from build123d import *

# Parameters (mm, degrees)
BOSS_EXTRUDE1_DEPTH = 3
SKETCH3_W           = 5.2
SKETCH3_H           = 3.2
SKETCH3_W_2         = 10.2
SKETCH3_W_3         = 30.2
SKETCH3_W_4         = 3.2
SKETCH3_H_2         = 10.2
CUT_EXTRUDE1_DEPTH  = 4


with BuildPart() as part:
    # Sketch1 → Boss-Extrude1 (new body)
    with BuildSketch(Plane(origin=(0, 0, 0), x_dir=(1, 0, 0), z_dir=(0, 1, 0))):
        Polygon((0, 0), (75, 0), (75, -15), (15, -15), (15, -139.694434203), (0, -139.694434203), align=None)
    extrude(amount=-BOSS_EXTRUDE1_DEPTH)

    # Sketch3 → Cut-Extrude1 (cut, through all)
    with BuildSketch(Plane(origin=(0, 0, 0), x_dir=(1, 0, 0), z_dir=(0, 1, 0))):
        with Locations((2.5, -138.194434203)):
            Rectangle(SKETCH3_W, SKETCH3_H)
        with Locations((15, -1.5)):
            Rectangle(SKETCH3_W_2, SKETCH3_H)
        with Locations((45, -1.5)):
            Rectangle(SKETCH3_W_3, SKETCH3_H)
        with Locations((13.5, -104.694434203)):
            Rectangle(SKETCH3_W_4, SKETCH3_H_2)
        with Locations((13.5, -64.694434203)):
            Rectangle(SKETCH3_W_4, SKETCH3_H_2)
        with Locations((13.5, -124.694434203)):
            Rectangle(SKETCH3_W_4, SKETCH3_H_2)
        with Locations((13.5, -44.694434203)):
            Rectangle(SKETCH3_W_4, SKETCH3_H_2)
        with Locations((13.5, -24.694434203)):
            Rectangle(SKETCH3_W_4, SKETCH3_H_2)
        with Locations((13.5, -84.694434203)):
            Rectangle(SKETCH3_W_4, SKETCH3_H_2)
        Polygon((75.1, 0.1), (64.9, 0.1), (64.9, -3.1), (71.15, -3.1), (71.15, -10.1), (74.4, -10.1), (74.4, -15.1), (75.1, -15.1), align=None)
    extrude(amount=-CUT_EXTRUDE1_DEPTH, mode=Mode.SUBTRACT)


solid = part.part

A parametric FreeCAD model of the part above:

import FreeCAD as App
import Part
import Sketcher

V = App.Vector


def add_polygon(sketch, points):
    """Adds a closed chain of lines whose ends are joined by coincident constraints."""
    first, n = sketch.GeometryCount, len(points)
    for a, b in zip(points, points[1:] + points[:1]):
        sketch.addGeometry(Part.LineSegment(App.Vector(*a, 0), App.Vector(*b, 0)), False)
    for i in range(n):
        sketch.addConstraint(Sketcher.Constraint("Coincident", first + i, 2, first + (i + 1) % n, 1))

doc = App.newDocument("Part")
body = doc.addObject("PartDesign::Body", "Body")

# Sketch on XZ plane
sketch1 = doc.addObject("Sketcher::SketchObject", "Sketch")
body.addObject(sketch1)
sketch1.AttachmentSupport = (doc.XZ_Plane, [""])
sketch1.MapMode = "FlatFace"
add_polygon(sketch1, [(75, 0), (0, 0), (0, 140), (15, 140), (15, 15), (75, 15)])  # lines 0-5
sketch1.addConstraint(Sketcher.Constraint("Horizontal", 0))
sketch1.addConstraint(Sketcher.Constraint("Vertical", 1))
sketch1.addConstraint(Sketcher.Constraint("Horizontal", 2))
sketch1.addConstraint(Sketcher.Constraint("Vertical", 3))
sketch1.addConstraint(Sketcher.Constraint("Horizontal", 4))
sketch1.addConstraint(Sketcher.Constraint("Vertical", 5))
sketch1.addConstraint(Sketcher.Constraint("Coincident", 0, 2, -1, 1))
sketch1.addConstraint(Sketcher.Constraint("Equal", 2, 5))
sketch1.addConstraint(Sketcher.Constraint("DistanceX", 0, 2, 0, 1, 75.0))
sketch1.addConstraint(Sketcher.Constraint("DistanceX", 2, 1, 2, 2, 15.0))
sketch1.addConstraint(Sketcher.Constraint("DistanceY", 1, 1, 1, 2, 139.694434))
pad1 = doc.addObject("PartDesign::Pad", "Pad")
body.addObject(pad1)
pad1.Profile = sketch1
pad1.Length = 3

# Sketch on XZ plane
sketch2 = doc.addObject("Sketcher::SketchObject", "Sketch001")
body.addObject(sketch2)
sketch2.AttachmentSupport = (doc.XZ_Plane, [""])
sketch2.MapMode = "FlatFace"
add_polygon(sketch2, [(-0.1, 136.6), (-0.1, 139.8), (5.1, 139.8), (5.1, 136.6)])  # lines 0-3
add_polygon(sketch2, [(9.9, -0.1), (9.9, 3.1), (20.1, 3.1), (20.1, -0.1)])  # lines 4-7
add_polygon(sketch2, [(29.9, -0.1), (29.9, 3.1), (60.1, 3.1), (60.1, -0.1)])  # lines 8-11
add_polygon(sketch2, [(11.9, 99.6), (11.9, 109.8), (15.1, 109.8), (15.1, 99.6)])  # lines 12-15
add_polygon(sketch2, [(11.9, 59.6), (11.9, 69.8), (15.1, 69.8), (15.1, 59.6)])  # lines 16-19
add_polygon(sketch2, [(11.9, 119.6), (11.9, 129.8), (15.1, 129.8), (15.1, 119.6)])  # lines 20-23
add_polygon(sketch2, [(11.9, 39.6), (11.9, 49.8), (15.1, 49.8), (15.1, 39.6)])  # lines 24-27
add_polygon(sketch2, [(11.9, 19.6), (11.9, 29.8), (15.1, 29.8), (15.1, 19.6)])  # lines 28-31
add_polygon(sketch2, [(11.9, 79.6), (11.9, 89.8), (15.1, 89.8), (15.1, 79.6)])  # lines 32-35
add_polygon(sketch2, [(75.1, -0.1), (64.9, -0.1), (64.9, 3.1), (71.2, 3.1), (71.2, 10.1), (74.4, 10.1), (74.4, 15.1), (75.1, 15.1)])  # lines 36-43
sketch2.addConstraint(Sketcher.Constraint("Vertical", 0))
sketch2.addConstraint(Sketcher.Constraint("Horizontal", 1))
sketch2.addConstraint(Sketcher.Constraint("Vertical", 2))
sketch2.addConstraint(Sketcher.Constraint("Horizontal", 3))
sketch2.addConstraint(Sketcher.Constraint("Vertical", 4))
sketch2.addConstraint(Sketcher.Constraint("Horizontal", 5))
sketch2.addConstraint(Sketcher.Constraint("Vertical", 6))
sketch2.addConstraint(Sketcher.Constraint("Horizontal", 7))
sketch2.addConstraint(Sketcher.Constraint("Vertical", 8))
sketch2.addConstraint(Sketcher.Constraint("Horizontal", 9))
sketch2.addConstraint(Sketcher.Constraint("Vertical", 10))
sketch2.addConstraint(Sketcher.Constraint("Horizontal", 11))
sketch2.addConstraint(Sketcher.Constraint("Vertical", 12))
sketch2.addConstraint(Sketcher.Constraint("Horizontal", 13))
sketch2.addConstraint(Sketcher.Constraint("Vertical", 14))
sketch2.addConstraint(Sketcher.Constraint("Horizontal", 15))
sketch2.addConstraint(Sketcher.Constraint("Vertical", 16))
sketch2.addConstraint(Sketcher.Constraint("Horizontal", 17))
sketch2.addConstraint(Sketcher.Constraint("Vertical", 18))
sketch2.addConstraint(Sketcher.Constraint("Horizontal", 19))
sketch2.addConstraint(Sketcher.Constraint("Vertical", 20))
sketch2.addConstraint(Sketcher.Constraint("Horizontal", 21))
sketch2.addConstraint(Sketcher.Constraint("Vertical", 22))
sketch2.addConstraint(Sketcher.Constraint("Horizontal", 23))
sketch2.addConstraint(Sketcher.Constraint("Vertical", 24))
sketch2.addConstraint(Sketcher.Constraint("Horizontal", 25))
sketch2.addConstraint(Sketcher.Constraint("Vertical", 26))
sketch2.addConstraint(Sketcher.Constraint("Horizontal", 27))
sketch2.addConstraint(Sketcher.Constraint("Vertical", 28))
sketch2.addConstraint(Sketcher.Constraint("Horizontal", 29))
sketch2.addConstraint(Sketcher.Constraint("Vertical", 30))
sketch2.addConstraint(Sketcher.Constraint("Horizontal", 31))
sketch2.addConstraint(Sketcher.Constraint("Vertical", 32))
sketch2.addConstraint(Sketcher.Constraint("Horizontal", 33))
sketch2.addConstraint(Sketcher.Constraint("Vertical", 34))
sketch2.addConstraint(Sketcher.Constraint("Horizontal", 35))
sketch2.addConstraint(Sketcher.Constraint("Horizontal", 36))
sketch2.addConstraint(Sketcher.Constraint("Vertical", 37))
sketch2.addConstraint(Sketcher.Constraint("Horizontal", 38))
sketch2.addConstraint(Sketcher.Constraint("Vertical", 39))
sketch2.addConstraint(Sketcher.Constraint("Horizontal", 40))
sketch2.addConstraint(Sketcher.Constraint("Vertical", 41))
sketch2.addConstraint(Sketcher.Constraint("Horizontal", 42))
sketch2.addConstraint(Sketcher.Constraint("Vertical", 43))
sketch2.addConstraint(Sketcher.Constraint("Horizontal", 5, 2, 8, 2))
sketch2.addConstraint(Sketcher.Constraint("Horizontal", 7, 2, 10, 2))
sketch2.addConstraint(Sketcher.Constraint("Horizontal", 11, 2, 36, 2))
sketch2.addConstraint(Sketcher.Constraint("Horizontal", 9, 2, 37, 2))
sketch2.addConstraint(Sketcher.Constraint("Vertical", 15, 2, 16, 2))
sketch2.addConstraint(Sketcher.Constraint("Vertical", 14, 2, 17, 2))
sketch2.addConstraint(Sketcher.Constraint("Vertical", 19, 2, 20, 2))
sketch2.addConstraint(Sketcher.Constraint("Vertical", 18, 2, 21, 2))
sketch2.addConstraint(Sketcher.Constraint("Vertical", 23, 2, 24, 2))
sketch2.addConstraint(Sketcher.Constraint("Vertical", 22, 2, 25, 2))
sketch2.addConstraint(Sketcher.Constraint("Vertical", 27, 2, 28, 2))
sketch2.addConstraint(Sketcher.Constraint("Vertical", 26, 2, 29, 2))
sketch2.addConstraint(Sketcher.Constraint("Vertical", 31, 2, 32, 2))
sketch2.addConstraint(Sketcher.Constraint("Vertical", 30, 2, 33, 2))
sketch2.addConstraint(Sketcher.Constraint("Equal", 7, 36))
sketch2.addConstraint(Sketcher.Constraint("Equal", 35, 0))
sketch2.addConstraint(Sketcher.Constraint("Equal", 2, 4))
sketch2.addConstraint(Sketcher.Constraint("Equal", 36, 12))
sketch2.addConstraint(Sketcher.Constraint("Equal", 14, 16))
sketch2.addConstraint(Sketcher.Constraint("Equal", 18, 20))
sketch2.addConstraint(Sketcher.Constraint("Equal", 22, 24))
sketch2.addConstraint(Sketcher.Constraint("Equal", 26, 28))
sketch2.addConstraint(Sketcher.Constraint("Equal", 30, 32))
sketch2.addConstraint(Sketcher.Constraint("DistanceY", 39, 1, 39, 2, 7.0))
sketch2.addConstraint(Sketcher.Constraint("DistanceY", 41, 1, 41, 2, 5.0))
sketch2.addConstraint(Sketcher.Constraint("DistanceX", 1, 1, 1, 2, 5.2))
sketch2.addConstraint(Sketcher.Constraint("DistanceX", 5, 1, 5, 2, 10.2))
sketch2.addConstraint(Sketcher.Constraint("DistanceX", 9, 1, 9, 2, 30.2))
sketch2.addConstraint(Sketcher.Constraint("DistanceX", 13, 1, 13, 2, 3.2))
sketch2.addConstraint(Sketcher.Constraint("DistanceX", 42, 1, 42, 2, 0.7))
sketch2.addConstraint(Sketcher.Constraint("DistanceX", 3, 2, 4, 2, 10.0))
sketch2.addConstraint(Sketcher.Constraint("DistanceX", 4, 2, 8, 2, 20.0))
sketch2.addConstraint(Sketcher.Constraint("DistanceX", 3, 2, 12, 2, 12.0))
sketch2.addConstraint(Sketcher.Constraint("DistanceY", 12, 2, 1, 2, 30.0))
sketch2.addConstraint(Sketcher.Constraint("DistanceY", 16, 2, 12, 2, 40.0))
sketch2.addConstraint(Sketcher.Constraint("DistanceY", 20, 2, 1, 2, 10.0))
sketch2.addConstraint(Sketcher.Constraint("DistanceY", 24, 2, 16, 2, 20.0))
sketch2.addConstraint(Sketcher.Constraint("DistanceY", 28, 2, 24, 2, 20.0))
sketch2.addConstraint(Sketcher.Constraint("DistanceY", 32, 2, 12, 2, 20.0))
sketch2.addConstraint(Sketcher.Constraint("DistanceX", 11, 2, 36, 2, 35.0))
sketch2.addConstraint(Sketcher.Constraint("DistanceX", 38, 1, 38, 2, 6.25))
sketch2.addConstraint(Sketcher.Constraint("DistanceX", 0, 2, -1, 1, 0.1))
sketch2.addConstraint(Sketcher.Constraint("DistanceY", -1, 1, 4, 2, 3.1))
sketch2.addConstraint(Sketcher.Constraint("DistanceY", -1, 1, 0, 2, 139.794434))
pocket1 = doc.addObject("PartDesign::Pocket", "Pocket")
body.addObject(pocket1)
pocket1.Profile = sketch2
pocket1.Type = "ThroughAll"
pocket1.Reversed = True

doc.recompute()
